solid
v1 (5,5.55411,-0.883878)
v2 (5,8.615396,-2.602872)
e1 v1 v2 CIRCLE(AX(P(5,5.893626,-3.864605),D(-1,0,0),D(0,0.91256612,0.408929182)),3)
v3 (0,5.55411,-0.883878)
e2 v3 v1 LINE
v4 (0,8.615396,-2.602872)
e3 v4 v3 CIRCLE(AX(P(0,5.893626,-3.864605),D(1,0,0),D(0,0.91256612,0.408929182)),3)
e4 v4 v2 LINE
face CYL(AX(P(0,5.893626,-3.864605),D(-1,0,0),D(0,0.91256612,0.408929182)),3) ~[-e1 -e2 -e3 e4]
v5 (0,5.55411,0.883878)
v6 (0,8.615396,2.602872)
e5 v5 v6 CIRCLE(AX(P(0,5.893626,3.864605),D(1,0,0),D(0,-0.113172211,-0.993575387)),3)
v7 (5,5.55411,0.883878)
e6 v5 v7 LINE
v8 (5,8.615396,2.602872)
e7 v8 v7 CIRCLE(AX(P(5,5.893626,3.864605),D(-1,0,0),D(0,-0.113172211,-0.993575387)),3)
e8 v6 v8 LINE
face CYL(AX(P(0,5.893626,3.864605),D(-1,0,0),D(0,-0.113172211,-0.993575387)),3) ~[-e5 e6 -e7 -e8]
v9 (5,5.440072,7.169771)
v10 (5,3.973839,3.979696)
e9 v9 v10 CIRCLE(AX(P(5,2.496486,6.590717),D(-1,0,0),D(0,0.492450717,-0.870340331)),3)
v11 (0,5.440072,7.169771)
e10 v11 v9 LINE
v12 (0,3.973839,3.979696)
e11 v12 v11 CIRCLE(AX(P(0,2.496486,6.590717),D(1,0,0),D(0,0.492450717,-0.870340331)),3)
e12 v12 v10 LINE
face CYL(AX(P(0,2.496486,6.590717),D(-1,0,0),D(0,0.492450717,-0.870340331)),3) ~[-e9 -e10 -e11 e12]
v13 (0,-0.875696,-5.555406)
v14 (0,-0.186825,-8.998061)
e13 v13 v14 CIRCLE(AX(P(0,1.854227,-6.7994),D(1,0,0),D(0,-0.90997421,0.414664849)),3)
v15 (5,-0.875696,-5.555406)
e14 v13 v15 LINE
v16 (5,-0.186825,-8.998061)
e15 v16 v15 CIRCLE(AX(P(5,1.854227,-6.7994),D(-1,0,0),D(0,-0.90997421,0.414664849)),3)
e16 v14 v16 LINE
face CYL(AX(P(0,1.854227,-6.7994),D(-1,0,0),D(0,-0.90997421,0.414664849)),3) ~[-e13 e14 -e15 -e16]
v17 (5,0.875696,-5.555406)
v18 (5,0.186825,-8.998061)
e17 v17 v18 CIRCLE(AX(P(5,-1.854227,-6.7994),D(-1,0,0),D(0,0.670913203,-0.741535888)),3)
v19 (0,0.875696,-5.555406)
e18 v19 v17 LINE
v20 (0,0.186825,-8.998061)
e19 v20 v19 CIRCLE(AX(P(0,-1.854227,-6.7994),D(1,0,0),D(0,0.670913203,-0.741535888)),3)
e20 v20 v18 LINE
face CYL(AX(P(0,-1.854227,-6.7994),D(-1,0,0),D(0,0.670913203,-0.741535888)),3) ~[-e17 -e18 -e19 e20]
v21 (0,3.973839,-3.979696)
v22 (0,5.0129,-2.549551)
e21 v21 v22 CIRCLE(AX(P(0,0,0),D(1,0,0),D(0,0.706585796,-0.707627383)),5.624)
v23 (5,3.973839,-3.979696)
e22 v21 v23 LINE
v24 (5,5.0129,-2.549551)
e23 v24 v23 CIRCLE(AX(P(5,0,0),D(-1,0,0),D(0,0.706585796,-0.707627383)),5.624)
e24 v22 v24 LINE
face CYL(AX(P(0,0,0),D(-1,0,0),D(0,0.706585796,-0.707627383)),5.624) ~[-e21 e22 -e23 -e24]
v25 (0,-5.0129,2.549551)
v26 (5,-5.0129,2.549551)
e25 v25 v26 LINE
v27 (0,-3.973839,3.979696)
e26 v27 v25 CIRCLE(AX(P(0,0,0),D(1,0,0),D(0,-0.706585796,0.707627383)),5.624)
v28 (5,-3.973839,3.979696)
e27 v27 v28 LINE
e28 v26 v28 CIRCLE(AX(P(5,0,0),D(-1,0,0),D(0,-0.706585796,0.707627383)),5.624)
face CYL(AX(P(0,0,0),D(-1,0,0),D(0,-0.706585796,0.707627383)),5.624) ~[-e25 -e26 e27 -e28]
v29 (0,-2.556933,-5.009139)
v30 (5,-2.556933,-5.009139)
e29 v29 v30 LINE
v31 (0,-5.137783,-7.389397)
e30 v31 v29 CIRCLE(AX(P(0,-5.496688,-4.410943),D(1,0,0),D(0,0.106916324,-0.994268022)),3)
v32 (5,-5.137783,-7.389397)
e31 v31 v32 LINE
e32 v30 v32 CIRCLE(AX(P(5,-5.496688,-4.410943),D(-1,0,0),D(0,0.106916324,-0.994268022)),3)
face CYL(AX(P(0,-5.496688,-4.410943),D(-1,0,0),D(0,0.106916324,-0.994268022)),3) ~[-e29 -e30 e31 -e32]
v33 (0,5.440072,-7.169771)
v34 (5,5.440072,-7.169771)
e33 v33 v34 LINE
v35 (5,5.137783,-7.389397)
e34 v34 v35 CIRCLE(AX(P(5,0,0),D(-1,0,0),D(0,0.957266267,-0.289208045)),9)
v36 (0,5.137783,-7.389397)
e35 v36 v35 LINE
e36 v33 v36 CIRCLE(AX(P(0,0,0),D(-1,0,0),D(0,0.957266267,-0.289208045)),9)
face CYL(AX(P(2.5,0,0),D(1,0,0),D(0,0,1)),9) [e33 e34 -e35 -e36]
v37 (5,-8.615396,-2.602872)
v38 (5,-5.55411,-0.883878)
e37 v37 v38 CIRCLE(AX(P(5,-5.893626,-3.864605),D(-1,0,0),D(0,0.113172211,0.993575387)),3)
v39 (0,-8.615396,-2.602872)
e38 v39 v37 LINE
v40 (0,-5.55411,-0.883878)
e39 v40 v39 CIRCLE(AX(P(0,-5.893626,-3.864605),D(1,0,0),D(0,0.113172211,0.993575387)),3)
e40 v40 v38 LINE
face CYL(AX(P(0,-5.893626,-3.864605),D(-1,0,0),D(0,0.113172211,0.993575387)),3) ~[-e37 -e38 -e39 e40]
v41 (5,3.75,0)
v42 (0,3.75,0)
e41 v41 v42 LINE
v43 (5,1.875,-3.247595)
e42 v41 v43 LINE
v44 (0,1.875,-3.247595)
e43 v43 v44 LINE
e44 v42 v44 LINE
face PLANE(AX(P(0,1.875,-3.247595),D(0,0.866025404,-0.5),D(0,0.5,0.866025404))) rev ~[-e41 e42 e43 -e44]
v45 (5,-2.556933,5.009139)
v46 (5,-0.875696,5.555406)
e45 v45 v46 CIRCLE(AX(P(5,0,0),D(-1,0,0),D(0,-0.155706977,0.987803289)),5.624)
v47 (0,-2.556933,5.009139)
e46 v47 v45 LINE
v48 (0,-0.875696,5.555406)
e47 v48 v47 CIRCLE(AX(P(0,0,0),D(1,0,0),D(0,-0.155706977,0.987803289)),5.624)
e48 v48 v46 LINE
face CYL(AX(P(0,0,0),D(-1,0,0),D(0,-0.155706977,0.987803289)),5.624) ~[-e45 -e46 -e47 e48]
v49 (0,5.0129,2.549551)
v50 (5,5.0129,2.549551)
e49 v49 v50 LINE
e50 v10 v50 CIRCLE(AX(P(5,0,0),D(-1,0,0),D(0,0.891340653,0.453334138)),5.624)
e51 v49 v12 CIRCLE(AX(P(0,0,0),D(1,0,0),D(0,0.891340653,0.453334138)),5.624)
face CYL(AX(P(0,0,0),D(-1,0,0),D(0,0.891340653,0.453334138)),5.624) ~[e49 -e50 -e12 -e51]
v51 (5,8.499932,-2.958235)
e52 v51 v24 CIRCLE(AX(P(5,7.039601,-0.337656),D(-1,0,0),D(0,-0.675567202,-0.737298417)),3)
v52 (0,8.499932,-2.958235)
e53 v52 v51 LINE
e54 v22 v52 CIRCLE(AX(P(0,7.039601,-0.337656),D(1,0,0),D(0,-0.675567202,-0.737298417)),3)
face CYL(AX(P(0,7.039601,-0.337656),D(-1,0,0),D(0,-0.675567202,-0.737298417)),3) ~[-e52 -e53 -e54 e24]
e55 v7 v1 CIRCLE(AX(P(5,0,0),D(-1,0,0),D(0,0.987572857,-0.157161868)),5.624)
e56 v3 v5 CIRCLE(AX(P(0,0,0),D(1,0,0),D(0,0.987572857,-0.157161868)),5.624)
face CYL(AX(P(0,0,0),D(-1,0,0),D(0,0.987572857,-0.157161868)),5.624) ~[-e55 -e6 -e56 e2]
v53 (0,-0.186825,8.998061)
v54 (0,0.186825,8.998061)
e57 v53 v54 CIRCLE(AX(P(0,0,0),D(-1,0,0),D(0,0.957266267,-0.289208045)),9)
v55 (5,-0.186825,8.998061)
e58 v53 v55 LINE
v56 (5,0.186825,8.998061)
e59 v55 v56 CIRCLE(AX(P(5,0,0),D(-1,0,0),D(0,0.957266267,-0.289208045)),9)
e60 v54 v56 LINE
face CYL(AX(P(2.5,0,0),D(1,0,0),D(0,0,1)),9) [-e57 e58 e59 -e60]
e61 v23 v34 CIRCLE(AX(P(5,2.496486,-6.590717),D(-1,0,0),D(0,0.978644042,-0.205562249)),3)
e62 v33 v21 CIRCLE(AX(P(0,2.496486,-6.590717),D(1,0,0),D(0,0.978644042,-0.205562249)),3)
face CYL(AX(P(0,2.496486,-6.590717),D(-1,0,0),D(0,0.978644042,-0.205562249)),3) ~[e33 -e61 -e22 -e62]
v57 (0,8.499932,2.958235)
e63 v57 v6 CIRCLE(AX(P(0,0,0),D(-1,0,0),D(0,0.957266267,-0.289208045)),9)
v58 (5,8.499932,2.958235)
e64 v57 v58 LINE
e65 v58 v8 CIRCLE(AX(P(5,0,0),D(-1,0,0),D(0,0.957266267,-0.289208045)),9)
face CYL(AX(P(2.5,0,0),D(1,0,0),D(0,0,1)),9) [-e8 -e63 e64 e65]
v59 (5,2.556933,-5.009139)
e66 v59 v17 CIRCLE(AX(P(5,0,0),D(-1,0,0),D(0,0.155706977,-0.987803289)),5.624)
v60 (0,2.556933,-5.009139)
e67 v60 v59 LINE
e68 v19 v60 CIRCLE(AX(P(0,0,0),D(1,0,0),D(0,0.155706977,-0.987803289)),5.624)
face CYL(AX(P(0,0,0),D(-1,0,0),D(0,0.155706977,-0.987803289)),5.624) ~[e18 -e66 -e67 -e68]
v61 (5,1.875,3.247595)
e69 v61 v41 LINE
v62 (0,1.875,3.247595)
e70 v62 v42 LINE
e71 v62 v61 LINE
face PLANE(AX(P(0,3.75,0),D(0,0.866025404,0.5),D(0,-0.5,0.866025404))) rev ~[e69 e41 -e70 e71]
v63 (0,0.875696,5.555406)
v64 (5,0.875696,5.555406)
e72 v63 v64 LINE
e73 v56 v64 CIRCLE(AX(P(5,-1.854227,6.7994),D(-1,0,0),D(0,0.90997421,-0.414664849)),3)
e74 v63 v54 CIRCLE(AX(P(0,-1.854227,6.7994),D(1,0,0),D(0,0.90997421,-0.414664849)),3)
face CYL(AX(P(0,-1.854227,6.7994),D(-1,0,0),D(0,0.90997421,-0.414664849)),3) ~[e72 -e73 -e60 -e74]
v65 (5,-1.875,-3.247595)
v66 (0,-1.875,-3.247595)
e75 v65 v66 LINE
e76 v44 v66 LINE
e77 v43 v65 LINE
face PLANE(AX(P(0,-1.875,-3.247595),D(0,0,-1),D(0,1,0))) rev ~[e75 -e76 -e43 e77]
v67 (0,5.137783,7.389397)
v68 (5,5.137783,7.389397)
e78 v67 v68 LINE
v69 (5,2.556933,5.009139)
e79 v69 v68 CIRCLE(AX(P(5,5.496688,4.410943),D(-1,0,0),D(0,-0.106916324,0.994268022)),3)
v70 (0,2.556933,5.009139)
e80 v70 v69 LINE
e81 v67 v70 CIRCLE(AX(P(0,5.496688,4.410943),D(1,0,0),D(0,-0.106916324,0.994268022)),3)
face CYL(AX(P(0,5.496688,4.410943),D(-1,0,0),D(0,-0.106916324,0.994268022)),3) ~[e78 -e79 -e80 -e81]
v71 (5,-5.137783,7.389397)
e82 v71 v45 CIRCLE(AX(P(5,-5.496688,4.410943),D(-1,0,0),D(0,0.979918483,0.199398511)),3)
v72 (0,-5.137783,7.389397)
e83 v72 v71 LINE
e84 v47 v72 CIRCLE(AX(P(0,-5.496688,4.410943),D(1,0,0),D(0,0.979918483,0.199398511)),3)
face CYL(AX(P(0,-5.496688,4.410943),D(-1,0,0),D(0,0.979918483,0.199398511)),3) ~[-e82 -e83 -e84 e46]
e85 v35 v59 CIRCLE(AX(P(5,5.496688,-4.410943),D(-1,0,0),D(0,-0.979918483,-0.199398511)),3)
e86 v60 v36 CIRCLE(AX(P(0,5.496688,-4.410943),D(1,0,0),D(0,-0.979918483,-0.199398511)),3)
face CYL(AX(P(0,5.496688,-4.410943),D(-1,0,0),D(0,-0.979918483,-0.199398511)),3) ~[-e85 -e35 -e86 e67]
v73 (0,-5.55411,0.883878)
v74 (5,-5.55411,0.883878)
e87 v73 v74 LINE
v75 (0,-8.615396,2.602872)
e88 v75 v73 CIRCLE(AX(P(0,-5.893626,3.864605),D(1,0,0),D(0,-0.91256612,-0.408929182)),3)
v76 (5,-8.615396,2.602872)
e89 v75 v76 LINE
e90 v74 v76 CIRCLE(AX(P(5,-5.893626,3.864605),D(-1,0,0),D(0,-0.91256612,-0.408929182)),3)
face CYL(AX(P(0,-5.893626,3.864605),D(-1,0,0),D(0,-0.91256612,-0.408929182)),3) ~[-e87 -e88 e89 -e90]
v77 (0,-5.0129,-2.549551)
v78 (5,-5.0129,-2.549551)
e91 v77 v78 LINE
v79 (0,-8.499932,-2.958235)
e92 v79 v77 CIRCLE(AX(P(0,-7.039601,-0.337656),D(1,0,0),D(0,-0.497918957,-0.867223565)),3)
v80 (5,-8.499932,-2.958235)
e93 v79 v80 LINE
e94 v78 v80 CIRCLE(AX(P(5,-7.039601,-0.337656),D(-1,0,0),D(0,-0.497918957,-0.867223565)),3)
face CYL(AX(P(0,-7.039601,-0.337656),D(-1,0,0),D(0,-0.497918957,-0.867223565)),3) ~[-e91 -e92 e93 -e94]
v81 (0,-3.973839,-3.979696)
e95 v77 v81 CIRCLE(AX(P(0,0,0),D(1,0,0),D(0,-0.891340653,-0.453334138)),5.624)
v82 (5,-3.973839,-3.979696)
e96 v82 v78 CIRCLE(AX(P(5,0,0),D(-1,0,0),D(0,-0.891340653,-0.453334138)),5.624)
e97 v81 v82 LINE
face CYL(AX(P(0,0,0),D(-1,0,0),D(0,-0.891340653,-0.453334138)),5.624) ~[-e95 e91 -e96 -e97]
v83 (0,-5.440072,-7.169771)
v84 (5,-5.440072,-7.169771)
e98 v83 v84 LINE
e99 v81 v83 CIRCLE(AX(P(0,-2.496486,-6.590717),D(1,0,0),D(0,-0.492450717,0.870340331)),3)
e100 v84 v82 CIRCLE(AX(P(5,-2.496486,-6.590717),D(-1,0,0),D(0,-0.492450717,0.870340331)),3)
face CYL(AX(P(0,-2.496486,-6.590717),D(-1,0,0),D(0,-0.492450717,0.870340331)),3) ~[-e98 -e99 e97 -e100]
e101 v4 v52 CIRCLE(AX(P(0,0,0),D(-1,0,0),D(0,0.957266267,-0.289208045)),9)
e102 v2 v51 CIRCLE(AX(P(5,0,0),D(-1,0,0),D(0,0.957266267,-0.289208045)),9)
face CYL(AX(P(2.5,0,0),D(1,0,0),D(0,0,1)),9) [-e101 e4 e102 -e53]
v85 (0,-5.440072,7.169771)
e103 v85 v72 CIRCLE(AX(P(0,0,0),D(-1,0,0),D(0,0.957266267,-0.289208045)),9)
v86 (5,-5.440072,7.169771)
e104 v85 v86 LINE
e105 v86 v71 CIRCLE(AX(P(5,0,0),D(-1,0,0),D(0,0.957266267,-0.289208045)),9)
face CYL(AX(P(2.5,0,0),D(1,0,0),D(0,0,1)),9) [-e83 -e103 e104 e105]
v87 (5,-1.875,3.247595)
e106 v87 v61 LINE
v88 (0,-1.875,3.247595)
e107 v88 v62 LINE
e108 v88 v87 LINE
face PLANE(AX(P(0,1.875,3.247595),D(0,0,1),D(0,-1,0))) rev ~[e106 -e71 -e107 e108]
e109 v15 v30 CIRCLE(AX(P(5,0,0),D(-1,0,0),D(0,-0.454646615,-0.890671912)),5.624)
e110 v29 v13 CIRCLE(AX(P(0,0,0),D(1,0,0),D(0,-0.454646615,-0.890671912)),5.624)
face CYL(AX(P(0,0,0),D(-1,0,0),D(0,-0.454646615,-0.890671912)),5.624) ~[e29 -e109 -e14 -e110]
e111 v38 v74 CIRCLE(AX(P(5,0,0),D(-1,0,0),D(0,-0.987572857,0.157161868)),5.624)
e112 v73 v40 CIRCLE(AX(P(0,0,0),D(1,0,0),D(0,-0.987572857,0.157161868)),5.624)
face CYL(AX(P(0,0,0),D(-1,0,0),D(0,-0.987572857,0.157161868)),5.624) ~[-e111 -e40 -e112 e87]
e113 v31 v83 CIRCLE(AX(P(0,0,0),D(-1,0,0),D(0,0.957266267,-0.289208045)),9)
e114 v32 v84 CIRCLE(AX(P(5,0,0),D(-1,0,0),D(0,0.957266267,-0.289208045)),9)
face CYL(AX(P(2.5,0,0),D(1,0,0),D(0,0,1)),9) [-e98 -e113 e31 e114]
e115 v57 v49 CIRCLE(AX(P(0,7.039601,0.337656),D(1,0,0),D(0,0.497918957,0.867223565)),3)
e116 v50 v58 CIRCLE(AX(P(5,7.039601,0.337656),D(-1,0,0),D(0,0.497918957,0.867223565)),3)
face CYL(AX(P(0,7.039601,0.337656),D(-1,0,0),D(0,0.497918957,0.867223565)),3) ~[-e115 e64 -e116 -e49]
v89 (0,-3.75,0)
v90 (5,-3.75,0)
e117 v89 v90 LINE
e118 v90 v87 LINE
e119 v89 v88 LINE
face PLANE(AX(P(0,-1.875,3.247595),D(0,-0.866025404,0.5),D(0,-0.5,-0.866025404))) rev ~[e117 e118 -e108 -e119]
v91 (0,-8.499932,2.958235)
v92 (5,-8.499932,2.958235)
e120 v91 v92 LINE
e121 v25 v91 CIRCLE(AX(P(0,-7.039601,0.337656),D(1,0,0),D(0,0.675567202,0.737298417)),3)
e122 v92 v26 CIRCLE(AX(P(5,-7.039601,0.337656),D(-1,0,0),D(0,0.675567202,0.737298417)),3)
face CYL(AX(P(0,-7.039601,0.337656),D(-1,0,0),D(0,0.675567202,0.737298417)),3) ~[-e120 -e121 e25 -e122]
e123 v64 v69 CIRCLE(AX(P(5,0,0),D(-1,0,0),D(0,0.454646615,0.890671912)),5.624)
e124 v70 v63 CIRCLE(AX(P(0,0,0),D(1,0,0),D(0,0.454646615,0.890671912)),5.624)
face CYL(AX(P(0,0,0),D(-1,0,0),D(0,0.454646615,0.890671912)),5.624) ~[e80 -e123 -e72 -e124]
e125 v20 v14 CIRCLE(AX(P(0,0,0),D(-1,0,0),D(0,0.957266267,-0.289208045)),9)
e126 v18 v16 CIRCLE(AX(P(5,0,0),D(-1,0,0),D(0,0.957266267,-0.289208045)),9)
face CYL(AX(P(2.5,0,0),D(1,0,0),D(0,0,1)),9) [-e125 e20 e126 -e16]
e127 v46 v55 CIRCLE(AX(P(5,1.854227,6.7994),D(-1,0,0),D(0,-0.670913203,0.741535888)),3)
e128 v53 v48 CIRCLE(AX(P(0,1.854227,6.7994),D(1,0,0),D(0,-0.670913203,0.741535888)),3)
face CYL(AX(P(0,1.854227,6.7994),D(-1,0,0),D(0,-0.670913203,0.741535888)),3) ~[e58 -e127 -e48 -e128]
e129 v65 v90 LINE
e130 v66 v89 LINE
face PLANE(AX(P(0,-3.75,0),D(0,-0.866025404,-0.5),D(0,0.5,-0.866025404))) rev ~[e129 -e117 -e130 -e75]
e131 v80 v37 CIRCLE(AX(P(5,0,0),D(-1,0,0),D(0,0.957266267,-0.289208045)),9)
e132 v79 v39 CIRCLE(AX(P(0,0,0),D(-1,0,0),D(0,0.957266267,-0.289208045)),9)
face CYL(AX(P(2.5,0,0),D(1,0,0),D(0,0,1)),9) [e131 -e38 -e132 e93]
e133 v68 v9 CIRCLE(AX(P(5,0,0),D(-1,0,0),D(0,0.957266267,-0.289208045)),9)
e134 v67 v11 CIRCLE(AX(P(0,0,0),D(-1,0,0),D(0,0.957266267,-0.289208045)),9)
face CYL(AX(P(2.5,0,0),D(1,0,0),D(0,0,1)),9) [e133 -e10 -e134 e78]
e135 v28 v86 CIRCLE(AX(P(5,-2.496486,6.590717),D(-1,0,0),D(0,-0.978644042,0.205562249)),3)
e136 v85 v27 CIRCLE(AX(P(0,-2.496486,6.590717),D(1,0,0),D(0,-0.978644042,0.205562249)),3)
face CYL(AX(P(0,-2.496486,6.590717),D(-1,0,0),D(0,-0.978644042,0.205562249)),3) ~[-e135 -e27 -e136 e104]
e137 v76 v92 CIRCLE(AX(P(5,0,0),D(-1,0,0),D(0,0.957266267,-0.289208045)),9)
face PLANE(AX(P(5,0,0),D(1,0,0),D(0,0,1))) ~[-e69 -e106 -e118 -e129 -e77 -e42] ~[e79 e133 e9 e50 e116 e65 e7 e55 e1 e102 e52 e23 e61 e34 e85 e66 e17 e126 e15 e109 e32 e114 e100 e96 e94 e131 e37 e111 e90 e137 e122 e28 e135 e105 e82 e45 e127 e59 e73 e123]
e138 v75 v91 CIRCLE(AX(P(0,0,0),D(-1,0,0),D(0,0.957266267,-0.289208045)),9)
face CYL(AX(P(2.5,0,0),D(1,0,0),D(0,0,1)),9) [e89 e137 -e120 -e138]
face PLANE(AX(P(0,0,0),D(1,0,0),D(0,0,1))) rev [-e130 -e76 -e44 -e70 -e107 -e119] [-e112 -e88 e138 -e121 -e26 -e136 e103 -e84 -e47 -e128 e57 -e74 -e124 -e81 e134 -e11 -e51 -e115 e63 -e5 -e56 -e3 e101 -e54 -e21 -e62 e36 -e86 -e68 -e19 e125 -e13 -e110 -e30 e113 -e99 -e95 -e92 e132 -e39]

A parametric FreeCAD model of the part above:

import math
import FreeCAD as App
import Part
import Sketcher
Q = App.Units.Quantity


def add_polygon(sketch, points):
    """Adds a closed chain of lines whose ends are joined by coincident constraints."""
    first, n = sketch.GeometryCount, len(points)
    for a, b in zip(points, points[1:] + points[:1]):
        sketch.addGeometry(Part.LineSegment(App.Vector(*a, 0), App.Vector(*b, 0)), False)
    for i in range(n):
        sketch.addConstraint(Sketcher.Constraint("Coincident", first + i, 2, first + (i + 1) % n, 1))

doc = App.newDocument("Part")
body = doc.addObject("PartDesign::Body", "Body")

sketch1 = doc.addObject("Sketcher::SketchObject", "Sketch")
body.addObject(sketch1)
sketch1.AttachmentSupport = (doc.XZ_Plane, [""])
sketch1.MapMode = "FlatFace"
add_polygon(sketch1, [(0, -9), (0, 0), (5, 0), (5, -9)])
sketch1.addConstraint([
    Sketcher.Constraint("Vertical", 0),
    Sketcher.Constraint("Horizontal", 1),
    Sketcher.Constraint("Vertical", 2),
    Sketcher.Constraint("Horizontal", 3),
    Sketcher.Constraint("Coincident", 0, 2, -1, 1),
    Sketcher.Constraint("DistanceX", 1, 1, 1, 2, 5.0),
    Sketcher.Constraint("DistanceY", 0, 1, 0, 2, 9.0),
])
revolution = doc.addObject("PartDesign::Revolution", "Revolution")
body.addObject(revolution)
revolution.Profile = sketch1
revolution.ReferenceAxis = (sketch1, ["H_Axis"])
revolution.Angle = 360

sketch2 = doc.addObject("Sketcher::SketchObject", "Sketch001")
body.addObject(sketch2)
sketch2.AttachmentSupport = (doc.YZ_Plane, [""])
sketch2.MapMode = "FlatFace"
sketch2.addGeometry([
    Part.ArcOfCircle(Part.Circle(App.Vector(0, 0, 0), App.Vector(0, 0, 1), 5.6), math.radians(-9.04), math.radians(9.04)),
    Part.ArcOfCircle(Part.Circle(App.Vector(5.9, -3.9, 0), App.Vector(0, 0, 1), 3), math.radians(24), math.radians(96)),
    Part.ArcOfCircle(Part.Circle(App.Vector(0, 0, 0), App.Vector(0, 0, 1), 9), math.radians(-17), math.radians(17)),
    Part.ArcOfCircle(Part.Circle(App.Vector(5.9, 3.9, 0), App.Vector(0, 0, 1), 3), math.radians(-96), math.radians(-24)),
], False)
sketch2.addConstraint([
    Sketcher.Constraint("Coincident", 0, 1, 1, 2),
    Sketcher.Constraint("Coincident", 1, 1, 2, 1),
    Sketcher.Constraint("Coincident", 2, 2, 3, 2),
    Sketcher.Constraint("Coincident", 3, 1, 0, 2),
    Sketcher.Constraint("Coincident", 0, 3, -1, 1),
    Sketcher.Constraint("Coincident", 2, 3, -1, 1),
    Sketcher.Constraint("Equal", 1, 3),
    Sketcher.Constraint("Symmetric", 1, 3, 3, 3, -1),
    Sketcher.Constraint("Radius", 1, 3.0),
    Sketcher.Constraint("Radius", 0, 5.624),
    Sketcher.Constraint("Radius", 2, 9.0254),
    Sketcher.Constraint("DistanceX", 1, 3, 1, 1, 2.737698),
    Sketcher.Constraint("DistanceX", -1, 1, 0, 1, 5.55411),
])
pocket1 = doc.addObject("PartDesign::Pocket", "Pocket")
body.addObject(pocket1)
pocket1.Profile = sketch2
pocket1.Type = "ThroughAll"
pocket1.Reversed = True
doc.recompute()

polarpattern = doc.addObject("PartDesign::PolarPattern", "PolarPattern")
body.addObject(polarpattern)
polarpattern.Originals = [pocket1]
polarpattern.Axis = (doc.X_Axis, [""])
polarpattern.Angle = 360
polarpattern.Occurrences = 10
body.Tip = polarpattern

sketch3 = doc.addObject("Sketcher::SketchObject", "Sketch002")
body.addObject(sketch3)
sketch3.AttachmentSupport = (doc.YZ_Plane, [""])
sketch3.MapMode = "FlatFace"
add_polygon(sketch3, [(3.8, 0), (1.9, 3.2), (-1.9, 3.2), (-3.8, 0), (-1.9, -3.2), (1.9, -3.2)])
sketch3.addConstraint([
    Sketcher.Constraint("Horizontal", 1),
    Sketcher.Constraint("Horizontal", 4),
    Sketcher.Constraint("Symmetric", 0, 2, 3, 2, -1, 1),
    Sketcher.Constraint("Symmetric", 2, 2, 5, 2, -1, 1),
    Sketcher.Constraint("PointOnObject", 2, 2, -1),
    Sketcher.Constraint("Parallel", 2, 5),
    Sketcher.Constraint("Vertical", 1, 2, 3, 2),
    Sketcher.Constraint("Angle", 0, Q("120 deg")),
    Sketcher.Constraint("DistanceX", 1, 2, 1, 1, 3.75),
    Sketcher.Constraint("DistanceX", 2, 2, 5, 2, 7.5),
])
pocket2 = doc.addObject("PartDesign::Pocket", "Pocket001")
body.addObject(pocket2)
pocket2.Profile = sketch3
pocket2.Length = 100.00061
pocket2.Midplane = True

doc.recompute()
